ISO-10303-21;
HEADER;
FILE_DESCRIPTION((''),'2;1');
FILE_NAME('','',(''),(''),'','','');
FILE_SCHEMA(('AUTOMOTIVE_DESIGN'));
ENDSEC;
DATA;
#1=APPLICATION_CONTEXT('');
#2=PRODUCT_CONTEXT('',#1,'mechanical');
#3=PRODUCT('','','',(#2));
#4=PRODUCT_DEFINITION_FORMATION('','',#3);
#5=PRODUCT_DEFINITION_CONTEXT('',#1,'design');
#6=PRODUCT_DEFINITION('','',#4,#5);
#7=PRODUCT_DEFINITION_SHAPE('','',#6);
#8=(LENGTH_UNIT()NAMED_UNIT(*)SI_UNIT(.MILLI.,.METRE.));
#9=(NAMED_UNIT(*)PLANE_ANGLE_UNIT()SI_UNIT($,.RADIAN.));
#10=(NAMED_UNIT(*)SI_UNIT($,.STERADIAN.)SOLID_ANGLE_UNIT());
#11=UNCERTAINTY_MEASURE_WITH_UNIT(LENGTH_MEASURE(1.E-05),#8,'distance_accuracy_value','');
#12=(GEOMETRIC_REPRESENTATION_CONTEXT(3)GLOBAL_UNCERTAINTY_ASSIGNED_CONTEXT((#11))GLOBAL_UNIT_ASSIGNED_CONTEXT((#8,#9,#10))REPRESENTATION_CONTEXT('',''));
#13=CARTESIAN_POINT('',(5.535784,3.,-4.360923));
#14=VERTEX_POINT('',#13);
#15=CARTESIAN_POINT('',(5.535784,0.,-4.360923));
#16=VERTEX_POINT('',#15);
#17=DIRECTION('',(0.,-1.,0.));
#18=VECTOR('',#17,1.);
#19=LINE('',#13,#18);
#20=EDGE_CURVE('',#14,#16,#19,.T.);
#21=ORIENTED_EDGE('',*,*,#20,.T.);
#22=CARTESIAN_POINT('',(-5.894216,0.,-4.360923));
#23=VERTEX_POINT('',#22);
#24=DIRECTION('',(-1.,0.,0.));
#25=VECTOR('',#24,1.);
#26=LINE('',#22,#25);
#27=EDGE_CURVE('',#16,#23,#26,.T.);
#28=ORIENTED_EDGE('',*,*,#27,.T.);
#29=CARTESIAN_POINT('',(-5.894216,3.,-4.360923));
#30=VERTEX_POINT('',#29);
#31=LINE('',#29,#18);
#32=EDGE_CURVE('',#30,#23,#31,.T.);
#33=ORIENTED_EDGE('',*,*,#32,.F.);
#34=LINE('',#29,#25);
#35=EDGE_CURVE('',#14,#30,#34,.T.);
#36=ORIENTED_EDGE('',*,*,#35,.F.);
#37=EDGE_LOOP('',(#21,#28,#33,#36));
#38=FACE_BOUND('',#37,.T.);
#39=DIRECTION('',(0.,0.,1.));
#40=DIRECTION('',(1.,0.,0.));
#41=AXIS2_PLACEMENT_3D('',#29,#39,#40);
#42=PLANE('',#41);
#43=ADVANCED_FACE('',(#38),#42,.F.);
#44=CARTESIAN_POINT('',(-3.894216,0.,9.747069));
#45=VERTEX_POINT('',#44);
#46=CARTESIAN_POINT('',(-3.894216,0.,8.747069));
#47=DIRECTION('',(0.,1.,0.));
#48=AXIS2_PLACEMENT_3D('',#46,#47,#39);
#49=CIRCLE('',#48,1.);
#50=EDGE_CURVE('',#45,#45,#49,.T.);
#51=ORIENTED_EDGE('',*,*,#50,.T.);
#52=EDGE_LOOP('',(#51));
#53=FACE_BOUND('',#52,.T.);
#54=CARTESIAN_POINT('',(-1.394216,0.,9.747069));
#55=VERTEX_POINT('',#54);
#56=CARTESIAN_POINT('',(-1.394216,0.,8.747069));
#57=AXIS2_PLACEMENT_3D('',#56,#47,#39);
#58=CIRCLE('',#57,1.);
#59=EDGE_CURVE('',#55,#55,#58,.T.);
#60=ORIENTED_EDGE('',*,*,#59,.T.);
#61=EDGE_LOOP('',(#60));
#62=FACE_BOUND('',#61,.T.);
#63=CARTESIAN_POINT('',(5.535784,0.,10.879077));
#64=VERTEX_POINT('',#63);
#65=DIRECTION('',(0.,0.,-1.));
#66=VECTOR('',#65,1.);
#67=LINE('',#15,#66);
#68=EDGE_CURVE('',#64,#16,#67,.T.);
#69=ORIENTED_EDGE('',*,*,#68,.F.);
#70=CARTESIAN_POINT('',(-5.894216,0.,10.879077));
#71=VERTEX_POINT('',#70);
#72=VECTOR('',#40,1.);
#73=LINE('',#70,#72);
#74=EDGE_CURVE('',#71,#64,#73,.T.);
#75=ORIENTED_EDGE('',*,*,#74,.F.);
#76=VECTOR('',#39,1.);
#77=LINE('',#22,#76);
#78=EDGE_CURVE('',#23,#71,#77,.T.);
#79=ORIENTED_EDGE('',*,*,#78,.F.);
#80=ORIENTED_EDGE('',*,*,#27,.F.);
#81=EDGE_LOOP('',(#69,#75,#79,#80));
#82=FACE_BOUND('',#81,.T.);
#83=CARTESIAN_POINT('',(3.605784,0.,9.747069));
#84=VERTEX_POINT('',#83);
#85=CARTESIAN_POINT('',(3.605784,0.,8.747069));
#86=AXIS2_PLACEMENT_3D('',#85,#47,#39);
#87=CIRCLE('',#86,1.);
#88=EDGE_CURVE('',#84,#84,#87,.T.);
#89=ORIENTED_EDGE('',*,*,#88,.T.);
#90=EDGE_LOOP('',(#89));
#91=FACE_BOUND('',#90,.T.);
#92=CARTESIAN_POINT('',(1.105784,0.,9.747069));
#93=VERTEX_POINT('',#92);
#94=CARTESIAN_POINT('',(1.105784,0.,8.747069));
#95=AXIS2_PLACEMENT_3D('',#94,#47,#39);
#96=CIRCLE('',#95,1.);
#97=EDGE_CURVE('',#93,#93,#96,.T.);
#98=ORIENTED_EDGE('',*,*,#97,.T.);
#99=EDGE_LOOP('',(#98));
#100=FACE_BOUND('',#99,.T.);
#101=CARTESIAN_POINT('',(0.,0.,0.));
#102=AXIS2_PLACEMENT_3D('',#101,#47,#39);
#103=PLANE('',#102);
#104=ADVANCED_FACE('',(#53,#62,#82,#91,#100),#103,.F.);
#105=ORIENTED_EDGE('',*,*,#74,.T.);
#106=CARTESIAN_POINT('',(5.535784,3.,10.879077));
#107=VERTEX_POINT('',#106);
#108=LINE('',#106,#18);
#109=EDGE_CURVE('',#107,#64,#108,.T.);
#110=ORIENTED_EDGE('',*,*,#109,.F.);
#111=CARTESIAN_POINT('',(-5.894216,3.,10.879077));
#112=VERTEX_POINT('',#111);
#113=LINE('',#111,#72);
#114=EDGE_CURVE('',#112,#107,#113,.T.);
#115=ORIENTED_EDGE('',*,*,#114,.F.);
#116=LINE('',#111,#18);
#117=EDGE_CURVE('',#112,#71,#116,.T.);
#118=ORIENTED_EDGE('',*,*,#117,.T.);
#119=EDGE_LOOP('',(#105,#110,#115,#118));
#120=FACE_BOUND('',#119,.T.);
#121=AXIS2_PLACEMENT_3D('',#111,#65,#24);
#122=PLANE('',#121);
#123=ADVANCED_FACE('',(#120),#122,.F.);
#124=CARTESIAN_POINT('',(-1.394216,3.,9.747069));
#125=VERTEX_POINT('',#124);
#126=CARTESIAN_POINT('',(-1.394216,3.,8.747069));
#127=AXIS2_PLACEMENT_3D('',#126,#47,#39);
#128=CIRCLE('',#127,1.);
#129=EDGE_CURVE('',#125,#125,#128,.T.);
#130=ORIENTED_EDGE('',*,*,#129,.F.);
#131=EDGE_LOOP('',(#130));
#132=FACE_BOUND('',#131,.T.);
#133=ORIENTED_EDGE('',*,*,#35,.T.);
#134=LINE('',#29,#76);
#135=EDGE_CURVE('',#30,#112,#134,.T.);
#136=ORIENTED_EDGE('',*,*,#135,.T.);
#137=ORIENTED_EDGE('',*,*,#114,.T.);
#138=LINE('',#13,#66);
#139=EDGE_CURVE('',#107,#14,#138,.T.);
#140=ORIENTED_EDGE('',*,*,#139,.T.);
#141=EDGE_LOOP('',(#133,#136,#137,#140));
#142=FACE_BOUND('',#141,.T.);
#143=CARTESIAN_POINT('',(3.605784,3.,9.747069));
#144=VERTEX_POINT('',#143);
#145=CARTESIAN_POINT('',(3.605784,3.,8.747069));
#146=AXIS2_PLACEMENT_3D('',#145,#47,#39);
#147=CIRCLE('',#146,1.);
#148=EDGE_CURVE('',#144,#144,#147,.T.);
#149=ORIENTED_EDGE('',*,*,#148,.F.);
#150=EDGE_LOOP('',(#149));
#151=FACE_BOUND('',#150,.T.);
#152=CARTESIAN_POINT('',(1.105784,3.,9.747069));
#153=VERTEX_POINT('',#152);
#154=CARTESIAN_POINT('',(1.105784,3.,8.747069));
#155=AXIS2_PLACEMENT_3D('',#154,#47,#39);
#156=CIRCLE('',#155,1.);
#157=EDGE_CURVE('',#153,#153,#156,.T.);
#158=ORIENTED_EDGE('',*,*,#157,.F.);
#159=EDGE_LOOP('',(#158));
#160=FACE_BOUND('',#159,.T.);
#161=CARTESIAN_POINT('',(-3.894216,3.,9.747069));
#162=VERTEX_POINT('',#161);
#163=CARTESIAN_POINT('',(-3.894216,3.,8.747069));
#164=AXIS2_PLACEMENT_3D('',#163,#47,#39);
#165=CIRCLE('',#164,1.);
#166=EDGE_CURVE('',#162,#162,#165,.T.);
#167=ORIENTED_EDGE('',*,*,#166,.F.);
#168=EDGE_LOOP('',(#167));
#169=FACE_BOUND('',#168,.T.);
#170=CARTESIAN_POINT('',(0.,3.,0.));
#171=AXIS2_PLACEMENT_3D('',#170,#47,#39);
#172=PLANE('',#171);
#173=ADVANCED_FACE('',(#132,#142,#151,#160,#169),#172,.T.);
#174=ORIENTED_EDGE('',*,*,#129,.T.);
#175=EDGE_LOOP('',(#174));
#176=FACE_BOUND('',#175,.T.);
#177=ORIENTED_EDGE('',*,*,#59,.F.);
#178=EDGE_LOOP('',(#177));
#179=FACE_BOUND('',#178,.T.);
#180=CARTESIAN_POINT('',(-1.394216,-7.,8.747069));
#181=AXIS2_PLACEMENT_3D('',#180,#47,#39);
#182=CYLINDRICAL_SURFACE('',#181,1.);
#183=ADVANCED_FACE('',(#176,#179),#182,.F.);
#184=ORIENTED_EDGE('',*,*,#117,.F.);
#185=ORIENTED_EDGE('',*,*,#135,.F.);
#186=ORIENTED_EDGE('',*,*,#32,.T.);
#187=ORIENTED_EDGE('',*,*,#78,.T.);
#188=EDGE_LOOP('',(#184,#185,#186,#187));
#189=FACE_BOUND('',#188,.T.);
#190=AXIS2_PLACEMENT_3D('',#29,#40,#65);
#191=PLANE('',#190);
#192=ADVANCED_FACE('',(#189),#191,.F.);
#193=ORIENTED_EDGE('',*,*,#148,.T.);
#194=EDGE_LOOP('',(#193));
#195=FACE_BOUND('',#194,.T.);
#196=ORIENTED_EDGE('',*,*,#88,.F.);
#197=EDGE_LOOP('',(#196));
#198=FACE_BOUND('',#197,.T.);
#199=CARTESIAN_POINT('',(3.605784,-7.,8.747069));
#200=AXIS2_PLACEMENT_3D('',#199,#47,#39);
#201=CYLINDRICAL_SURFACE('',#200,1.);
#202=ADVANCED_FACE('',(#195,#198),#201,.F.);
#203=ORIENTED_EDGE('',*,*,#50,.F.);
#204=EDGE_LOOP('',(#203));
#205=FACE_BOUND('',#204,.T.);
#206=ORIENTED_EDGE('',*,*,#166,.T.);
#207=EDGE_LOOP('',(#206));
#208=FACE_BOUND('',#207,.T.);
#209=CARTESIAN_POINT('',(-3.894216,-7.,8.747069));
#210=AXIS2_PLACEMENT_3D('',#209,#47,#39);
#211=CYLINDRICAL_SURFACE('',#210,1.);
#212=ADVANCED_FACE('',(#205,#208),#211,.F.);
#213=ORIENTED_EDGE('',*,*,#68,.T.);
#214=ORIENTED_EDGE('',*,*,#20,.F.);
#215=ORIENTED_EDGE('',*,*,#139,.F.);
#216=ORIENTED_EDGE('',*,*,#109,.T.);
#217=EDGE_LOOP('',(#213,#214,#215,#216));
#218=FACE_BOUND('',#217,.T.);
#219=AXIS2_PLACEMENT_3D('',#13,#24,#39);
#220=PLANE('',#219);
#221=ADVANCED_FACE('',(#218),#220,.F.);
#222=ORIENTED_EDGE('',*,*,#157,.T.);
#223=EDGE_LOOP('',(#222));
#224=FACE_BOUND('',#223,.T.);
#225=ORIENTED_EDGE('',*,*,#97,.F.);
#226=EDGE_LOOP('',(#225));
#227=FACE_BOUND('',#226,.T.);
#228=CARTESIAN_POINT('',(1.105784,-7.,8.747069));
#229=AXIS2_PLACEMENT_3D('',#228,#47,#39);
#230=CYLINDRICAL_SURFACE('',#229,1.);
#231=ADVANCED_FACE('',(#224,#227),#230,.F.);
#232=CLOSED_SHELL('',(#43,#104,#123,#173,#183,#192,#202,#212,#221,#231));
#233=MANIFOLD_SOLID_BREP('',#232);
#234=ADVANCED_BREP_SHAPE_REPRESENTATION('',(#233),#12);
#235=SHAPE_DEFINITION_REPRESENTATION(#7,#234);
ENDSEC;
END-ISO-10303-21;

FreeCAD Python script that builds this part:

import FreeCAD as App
import Part
import Sketcher
from FreeCAD import Vector

doc = App.newDocument("Part")
body = doc.addObject("PartDesign::Body", "Body")

# Sketch on XZ plane
sketch1 = body.newObject("Sketcher::SketchObject", "Sketch")
sketch1.AttachmentSupport = (doc.getObject("XZ_Plane"), [""])
sketch1.MapMode = "FlatFace"
sketch1.addGeometry([
    Part.LineSegment(Vector(-5.894216, -4.360923, 0), Vector(-5.894216, 10.879077, 0)),
    Part.LineSegment(Vector(-5.894216, 10.879077, 0), Vector(5.535784, 10.879077, 0)),
    Part.LineSegment(Vector(5.535784, 10.879077, 0), Vector(5.535784, -4.360923, 0)),
    Part.LineSegment(Vector(5.535784, -4.360923, 0), Vector(-5.894216, -4.360923, 0)),
], False)
sketch1.addConstraint([
    Sketcher.Constraint("Coincident", 0, 2, 1, 1),
    Sketcher.Constraint("Coincident", 1, 2, 2, 1),
    Sketcher.Constraint("Coincident", 2, 2, 3, 1),
    Sketcher.Constraint("Coincident", 3, 2, 0, 1),
    Sketcher.Constraint("Vertical", 0),
    Sketcher.Constraint("Horizontal", 1),
    Sketcher.Constraint("Vertical", 2),
    Sketcher.Constraint("Horizontal", 3),
    Sketcher.Constraint("DistanceX", 1, 1, 1, 2, 11.43),
    Sketcher.Constraint("DistanceY", 0, 1, 0, 2, 15.24),
    Sketcher.Constraint("DistanceX", 0, 2, -1, 1, 5.894216),
    Sketcher.Constraint("DistanceY", -1, 1, 0, 2, 10.879077),
])
pad1 = body.newObject("PartDesign::Pad", "Pad")
pad1.Profile = sketch1
pad1.Length = 3
pad1.Reversed = True

# Sketch on XZ plane
sketch2 = body.newObject("Sketcher::SketchObject", "Sketch001")
sketch2.AttachmentSupport = (doc.getObject("XZ_Plane"), [""])
sketch2.MapMode = "FlatFace"
sketch2.AttachmentOffset = App.Placement(Vector(0, 0, -3), App.Rotation())
sketch2.addGeometry([
    Part.Circle(Vector(-3.894216, 8.747069, 0), Vector(0, 0, 1), 1),
    Part.Circle(Vector(-1.394216, 8.747069, 0), Vector(0, 0, 1), 1),
    Part.Circle(Vector(1.105784, 8.747069, 0), Vector(0, 0, 1), 1),
    Part.Circle(Vector(3.605784, 8.747069, 0), Vector(0, 0, 1), 1),
], False)
sketch2.addConstraint([
    Sketcher.Constraint("Equal", 0, 1),
    Sketcher.Constraint("Equal", 1, 2),
    Sketcher.Constraint("Equal", 2, 3),
    Sketcher.Constraint("Horizontal", 0, 3, 1, 3),
    Sketcher.Constraint("Horizontal", 1, 3, 2, 3),
    Sketcher.Constraint("Horizontal", 2, 3, 3, 3),
    Sketcher.Constraint("Diameter", 0, 2.0),
    Sketcher.Constraint("DistanceX", 0, 3, 2, 3, 5.0),
    Sketcher.Constraint("DistanceX", 1, 3, 3, 3, 5.0),
    Sketcher.Constraint("DistanceX", 0, 3, 1, 3, 2.5),
    Sketcher.Constraint("DistanceY", -1, 1, 0, 3, 8.747069),
    Sketcher.Constraint("DistanceX", 0, 3, -1, 1, 3.894216),
])
pocket1 = body.newObject("PartDesign::Pocket", "Pocket")
pocket1.Profile = sketch2
pocket1.Length = 10
pocket1.Reversed = True

doc.recompute()
